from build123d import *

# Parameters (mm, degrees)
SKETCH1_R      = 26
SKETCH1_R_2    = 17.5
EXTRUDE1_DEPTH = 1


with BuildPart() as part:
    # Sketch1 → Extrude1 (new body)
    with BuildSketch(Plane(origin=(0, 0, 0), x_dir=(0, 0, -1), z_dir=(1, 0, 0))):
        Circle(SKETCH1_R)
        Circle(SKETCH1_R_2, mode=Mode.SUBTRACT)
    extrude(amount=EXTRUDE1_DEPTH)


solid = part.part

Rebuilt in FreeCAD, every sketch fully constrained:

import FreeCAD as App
import Part
import Sketcher
Q = App.Units.Quantity

doc = App.newDocument("Part")
body = doc.addObject("PartDesign::Body", "Body")

sketch1 = doc.addObject("Sketcher::SketchObject", "Sketch")
body.addObject(sketch1)
sketch1.AttachmentSupport = (doc.YZ_Plane, [""])
sketch1.MapMode = "FlatFace"
sketch1.addGeometry([
    Part.Circle(App.Vector(0, 0, 0), App.Vector(0, 0, 1), 26),
    Part.Circle(App.Vector(0, 0, 0), App.Vector(0, 0, 1), 18),
], False)
sketch1.addConstraint([
    Sketcher.Constraint("Coincident", 0, 3, -1, 1),
    Sketcher.Constraint("Coincident", 1, 3, -1, 1),
    Sketcher.Constraint("Diameter", 0, Q("52 mm")),
    Sketcher.Constraint("Diameter", 1, Q("35 mm")),
])
pad1 = doc.addObject("PartDesign::Pad", "Pad")
body.addObject(pad1)
pad1.Profile = sketch1
pad1.Length = 1

doc.recompute()
